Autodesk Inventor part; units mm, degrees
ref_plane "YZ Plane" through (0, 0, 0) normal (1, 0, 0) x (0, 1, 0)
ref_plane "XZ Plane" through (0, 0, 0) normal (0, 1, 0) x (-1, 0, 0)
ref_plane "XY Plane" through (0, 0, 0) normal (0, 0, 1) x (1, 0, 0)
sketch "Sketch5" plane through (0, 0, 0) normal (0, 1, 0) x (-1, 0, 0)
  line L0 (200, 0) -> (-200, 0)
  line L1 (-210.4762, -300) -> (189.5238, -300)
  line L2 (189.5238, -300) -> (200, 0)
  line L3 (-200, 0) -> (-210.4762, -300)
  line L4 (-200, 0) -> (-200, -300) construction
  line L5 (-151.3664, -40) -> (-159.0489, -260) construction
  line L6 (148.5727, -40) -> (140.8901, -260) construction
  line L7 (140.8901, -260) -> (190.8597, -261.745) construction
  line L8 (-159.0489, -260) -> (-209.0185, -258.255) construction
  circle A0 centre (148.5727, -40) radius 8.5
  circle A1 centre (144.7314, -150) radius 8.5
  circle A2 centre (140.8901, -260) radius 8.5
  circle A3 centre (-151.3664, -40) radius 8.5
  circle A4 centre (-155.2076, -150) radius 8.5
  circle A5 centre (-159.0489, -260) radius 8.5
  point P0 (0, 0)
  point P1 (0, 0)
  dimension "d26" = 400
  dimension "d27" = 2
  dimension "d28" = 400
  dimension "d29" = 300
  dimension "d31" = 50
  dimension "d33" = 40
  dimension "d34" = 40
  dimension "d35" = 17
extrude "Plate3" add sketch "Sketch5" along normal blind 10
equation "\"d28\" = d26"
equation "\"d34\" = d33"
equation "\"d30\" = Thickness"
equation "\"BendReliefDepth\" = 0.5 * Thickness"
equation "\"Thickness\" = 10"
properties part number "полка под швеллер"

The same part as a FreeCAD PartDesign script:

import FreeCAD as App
import Part
import Sketcher
Q = App.Units.Quantity

doc = App.newDocument("Part")
params = doc.addObject("Spreadsheet::Sheet", "Params")
for row, (alias, value) in enumerate([
    ("sketch1_diameter", "17 mm"),
    ("sketch1_width", "400 mm"),
    ("pad1_length", "10 mm"),
], start=1):
    params.set(f"A{row}", alias)
    params.set(f"B{row}", "=" + value)
    params.setAlias(f"B{row}", alias)

body = doc.addObject("PartDesign::Body", "Body")

sketch1 = body.newObject("Sketcher::SketchObject", "Sketch")
sketch1.AttachmentSupport = (doc.getObject("XZ_Plane"), [""])
sketch1.MapMode = "FlatFace"
sketch1.addGeometry([
    Part.LineSegment(App.Vector(-190, -300, 0), App.Vector(-200, 0, 0)),
    Part.LineSegment(App.Vector(-200, 0, 0), App.Vector(200, 0, 0)),
    Part.LineSegment(App.Vector(200, 0, 0), App.Vector(210, -300, 0)),
    Part.LineSegment(App.Vector(210, -300, 0), App.Vector(-190, -300, 0)),
    Part.Circle(App.Vector(159, -260, 0), App.Vector(0, 0, 1), 8),
    Part.Circle(App.Vector(-141, -260, 0), App.Vector(0, 0, 1), 8),
    Part.Circle(App.Vector(155, -150, 0), App.Vector(0, 0, 1), 8),
    Part.Circle(App.Vector(151, -40, 0), App.Vector(0, 0, 1), 8),
    Part.Circle(App.Vector(-145, -150, 0), App.Vector(0, 0, 1), 8),
    Part.Circle(App.Vector(-149, -40, 0), App.Vector(0, 0, 1), 8),
], False)
sketch1.addConstraint([
    Sketcher.Constraint("Coincident", 0, 2, 1, 1),
    Sketcher.Constraint("Coincident", 1, 2, 2, 1),
    Sketcher.Constraint("Coincident", 2, 2, 3, 1),
    Sketcher.Constraint("Coincident", 3, 2, 0, 1),
    Sketcher.Constraint("Horizontal", 1),
    Sketcher.Constraint("Horizontal", 3),
    Sketcher.Constraint("Equal", 4, 5),
    Sketcher.Constraint("Equal", 5, 6),
    Sketcher.Constraint("Equal", 6, 7),
    Sketcher.Constraint("Equal", 7, 8),
    Sketcher.Constraint("Equal", 8, 9),
    Sketcher.Constraint("Symmetric", 0, 2, 1, 2, -1, 1),
    Sketcher.Constraint("Parallel", 0, 2),
    Sketcher.Constraint("Horizontal", 4, 3, 5, 3),
    Sketcher.Constraint("Horizontal", 6, 3, 8, 3),
    Sketcher.Constraint("Horizontal", 7, 3, 9, 3),
    Sketcher.Constraint("Diameter", 4, 17.0),
    Sketcher.Constraint("DistanceX", 1, 1, 1, 2, 400.0),
    Sketcher.Constraint("DistanceY", 7, 3, -1, 1, 40.0),
    Sketcher.Constraint("DistanceY", 2, 2, -1, 1, 300.0),
    Sketcher.Constraint("DistanceY", 2, 2, 4, 3, 40.0),
    Sketcher.Constraint("Angle", 0, Q("92 deg")),
    Sketcher.Constraint("DistanceY", 6, 3, -1, 1, 150.0),
    Sketcher.Constraint("DistanceX", 5, 3, -1, 1, 140.89),
    Sketcher.Constraint("DistanceX", -1, 1, 4, 3, 159.049),
    Sketcher.Constraint("DistanceX", 8, 3, 6, 3, 299.939),
    Sketcher.Constraint("DistanceX", 9, 3, 7, 3, 299.939),
    Sketcher.Constraint("DistanceX", 3, 2, 9, 3, 40.951),
    Sketcher.Constraint("DistanceX", -1, 1, 6, 3, 155.2076),
])
sketch1.setExpression("Constraints[16]", "Params.sketch1_diameter")
sketch1.setExpression("Constraints[17]", "Params.sketch1_width")
pad1 = body.newObject("PartDesign::Pad", "Pad")
pad1.Profile = sketch1
pad1.setExpression("Length", "Params.pad1_length")
pad1.Reversed = True

doc.recompute()
